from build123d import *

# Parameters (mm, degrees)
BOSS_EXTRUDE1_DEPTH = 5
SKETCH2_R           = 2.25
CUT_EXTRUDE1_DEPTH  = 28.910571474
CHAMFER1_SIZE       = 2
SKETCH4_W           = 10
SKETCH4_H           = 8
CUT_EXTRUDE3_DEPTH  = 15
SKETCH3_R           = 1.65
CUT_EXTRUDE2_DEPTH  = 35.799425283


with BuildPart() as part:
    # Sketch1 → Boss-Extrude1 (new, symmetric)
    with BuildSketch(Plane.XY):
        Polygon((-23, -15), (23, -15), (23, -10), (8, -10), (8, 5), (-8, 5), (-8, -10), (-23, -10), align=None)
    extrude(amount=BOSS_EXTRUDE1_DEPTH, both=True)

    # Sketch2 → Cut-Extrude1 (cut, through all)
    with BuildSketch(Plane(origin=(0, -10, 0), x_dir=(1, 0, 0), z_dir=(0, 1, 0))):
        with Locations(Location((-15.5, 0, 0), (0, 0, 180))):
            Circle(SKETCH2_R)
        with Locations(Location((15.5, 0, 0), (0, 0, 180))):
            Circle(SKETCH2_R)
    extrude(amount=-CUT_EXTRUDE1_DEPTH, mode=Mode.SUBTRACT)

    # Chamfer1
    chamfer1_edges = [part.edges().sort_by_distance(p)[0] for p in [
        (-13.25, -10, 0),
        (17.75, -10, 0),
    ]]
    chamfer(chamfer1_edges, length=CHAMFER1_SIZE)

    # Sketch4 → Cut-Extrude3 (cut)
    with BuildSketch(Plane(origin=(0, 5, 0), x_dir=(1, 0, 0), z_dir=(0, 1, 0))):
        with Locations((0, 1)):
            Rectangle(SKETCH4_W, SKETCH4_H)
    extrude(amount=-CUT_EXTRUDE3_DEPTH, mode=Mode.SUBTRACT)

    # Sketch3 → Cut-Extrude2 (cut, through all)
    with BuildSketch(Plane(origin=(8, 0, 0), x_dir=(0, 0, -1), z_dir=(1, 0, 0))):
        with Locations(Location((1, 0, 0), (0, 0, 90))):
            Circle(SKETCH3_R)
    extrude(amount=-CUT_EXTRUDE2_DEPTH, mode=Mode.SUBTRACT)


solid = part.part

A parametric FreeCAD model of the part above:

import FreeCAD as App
import Part
import Sketcher


def edges_at(feature, points):
    """Names of the edges that pass closest to the given points."""
    edges = feature.Shape.Edges
    near = lambda p: min(range(len(edges)), key=lambda i: edges[i].distToShape(Part.Vertex(*p))[0])
    return sorted({f"Edge{near(p) + 1}" for p in points})


def add_polygon(sketch, points):
    """Adds a closed chain of lines whose ends are joined by coincident constraints."""
    first, n = sketch.GeometryCount, len(points)
    for a, b in zip(points, points[1:] + points[:1]):
        sketch.addGeometry(Part.LineSegment(App.Vector(*a, 0), App.Vector(*b, 0)), False)
    for i in range(n):
        sketch.addConstraint(Sketcher.Constraint("Coincident", first + i, 2, first + (i + 1) % n, 1))

doc = App.newDocument("Part")
params = doc.addObject("Spreadsheet::Sheet", "Params")
for row, (alias, value) in enumerate([
    ("sketch1_width", "46 mm"),
    ("sketch1_width2", "15 mm"),
    ("sketch1_height", "5 mm"),
    ("pad1_length", "10 mm"),
    ("sketch2_diameter", "4.5 mm"),
    ("chamfer_size", "2 mm"),
    ("sketch3_width", "10 mm"),
    ("sketch3_height", "8 mm"),
    ("pocket2_length", "15 mm"),
    ("sketch4_diameter", "3.3 mm"),
], start=1):
    params.set(f"A{row}", alias)
    params.set(f"B{row}", "=" + value)
    params.setAlias(f"B{row}", alias)

body = doc.addObject("PartDesign::Body", "Body")

sketch1 = doc.addObject("Sketcher::SketchObject", "Sketch")
body.addObject(sketch1)
sketch1.AttachmentSupport = (doc.XY_Plane, [""])
sketch1.MapMode = "FlatFace"
add_polygon(sketch1, [(-23, -15), (23, -15), (23, -10), (8, -10), (8, 5), (-8, 5), (-8, -10), (-23, -10)])
sketch1.addConstraint([
    Sketcher.Constraint("Horizontal", 0),
    Sketcher.Constraint("Vertical", 1),
    Sketcher.Constraint("Horizontal", 2),
    Sketcher.Constraint("Vertical", 3),
    Sketcher.Constraint("Horizontal", 4),
    Sketcher.Constraint("Vertical", 5),
    Sketcher.Constraint("Horizontal", 6),
    Sketcher.Constraint("Vertical", 7),
    Sketcher.Constraint("Symmetric", 2, 2, 5, 2, -2),
    Sketcher.Constraint("Equal", 2, 6),
    Sketcher.Constraint("Equal", 6, 3),
    Sketcher.Constraint("DistanceX", 0, 1, 0, 2, 46.0),
    Sketcher.Constraint("DistanceX", 2, 2, 2, 1, 15.0),
    Sketcher.Constraint("DistanceY", 1, 1, 1, 2, 5.0),
    Sketcher.Constraint("DistanceY", 0, 2, -1, 1, 15.0),
])
sketch1.setExpression("Constraints[19]", "Params.sketch1_width")
sketch1.setExpression("Constraints[20]", "Params.sketch1_width2")
sketch1.setExpression("Constraints[21]", "Params.sketch1_height")
pad1 = doc.addObject("PartDesign::Pad", "Pad")
body.addObject(pad1)
pad1.Profile = sketch1
pad1.setExpression("Length", "Params.pad1_length")
pad1.Midplane = True

sketch2 = doc.addObject("Sketcher::SketchObject", "Sketch001")
body.addObject(sketch2)
sketch2.AttachmentSupport = (doc.XZ_Plane, [""])
sketch2.MapMode = "FlatFace"
sketch2.AttachmentOffset = App.Placement(App.Vector(0, 0, 10), App.Rotation())
sketch2.addGeometry([
    Part.Circle(App.Vector(-15.5, 0, 0), App.Vector(0, 0, 1), 2.2),
    Part.Circle(App.Vector(15.5, 0, 0), App.Vector(0, 0, 1), 2.2),
], False)
sketch2.addConstraint([
    Sketcher.Constraint("Equal", 0, 1),
    Sketcher.Constraint("Symmetric", 0, 3, 1, 3, -1, 1),
    Sketcher.Constraint("PointOnObject", 0, 3, -1),
    Sketcher.Constraint("Diameter", 0, 4.5),
    Sketcher.Constraint("DistanceX", 0, 3, 1, 3, 31.0),
])
sketch2.setExpression("Constraints[3]", "Params.sketch2_diameter")
pocket1 = doc.addObject("PartDesign::Pocket", "Pocket")
body.addObject(pocket1)
pocket1.Profile = sketch2
pocket1.Type = "ThroughAll"
pocket1.Reversed = True
doc.recompute()

chamfer = doc.addObject("PartDesign::Chamfer", "Chamfer")
body.addObject(chamfer)
chamfer.Base = (pocket1, edges_at(pocket1, [(-13.25, -10, 0), (17.75, -10, 0)]))
chamfer.setExpression("Size", "Params.chamfer_size")

sketch3 = doc.addObject("Sketcher::SketchObject", "Sketch002")
body.addObject(sketch3)
sketch3.AttachmentSupport = (doc.XZ_Plane, [""])
sketch3.MapMode = "FlatFace"
sketch3.AttachmentOffset = App.Placement(App.Vector(0, 0, -5), App.Rotation())
add_polygon(sketch3, [(-5, -5), (-5, 3), (5, 3), (5, -5)])
sketch3.addConstraint([
    Sketcher.Constraint("Vertical", 0),
    Sketcher.Constraint("Horizontal", 1),
    Sketcher.Constraint("Vertical", 2),
    Sketcher.Constraint("Horizontal", 3),
    Sketcher.Constraint("DistanceX", 1, 1, 1, 2, 10.0),
    Sketcher.Constraint("DistanceY", 0, 1, 0, 2, 8.0),
    Sketcher.Constraint("DistanceX", 0, 2, -1, 1, 5.0),
    Sketcher.Constraint("DistanceY", -1, 1, 0, 2, 3.0),
])
sketch3.setExpression("Constraints[8]", "Params.sketch3_width")
sketch3.setExpression("Constraints[9]", "Params.sketch3_height")
pocket2 = doc.addObject("PartDesign::Pocket", "Pocket001")
body.addObject(pocket2)
pocket2.Profile = sketch3
pocket2.setExpression("Length", "Params.pocket2_length")
pocket2.Reversed = True

sketch4 = doc.addObject("Sketcher::SketchObject", "Sketch003")
body.addObject(sketch4)
sketch4.AttachmentSupport = (doc.YZ_Plane, [""])
sketch4.MapMode = "FlatFace"
sketch4.AttachmentOffset = App.Placement(App.Vector(0, 0, 8), App.Rotation())
sketch4.addGeometry(Part.Circle(App.Vector(0, -1, 0), App.Vector(0, 0, 1), 1.6), False)
sketch4.addConstraint([
    Sketcher.Constraint("PointOnObject", 0, 3, -2),
    Sketcher.Constraint("Diameter", 0, 3.3),
    Sketcher.Constraint("DistanceY", 0, 3, -1, 1, 1.0),
])
sketch4.setExpression("Constraints[1]", "Params.sketch4_diameter")
pocket3 = doc.addObject("PartDesign::Pocket", "Pocket002")
body.addObject(pocket3)
pocket3.Profile = sketch4
pocket3.Type = "ThroughAll"

doc.recompute()
